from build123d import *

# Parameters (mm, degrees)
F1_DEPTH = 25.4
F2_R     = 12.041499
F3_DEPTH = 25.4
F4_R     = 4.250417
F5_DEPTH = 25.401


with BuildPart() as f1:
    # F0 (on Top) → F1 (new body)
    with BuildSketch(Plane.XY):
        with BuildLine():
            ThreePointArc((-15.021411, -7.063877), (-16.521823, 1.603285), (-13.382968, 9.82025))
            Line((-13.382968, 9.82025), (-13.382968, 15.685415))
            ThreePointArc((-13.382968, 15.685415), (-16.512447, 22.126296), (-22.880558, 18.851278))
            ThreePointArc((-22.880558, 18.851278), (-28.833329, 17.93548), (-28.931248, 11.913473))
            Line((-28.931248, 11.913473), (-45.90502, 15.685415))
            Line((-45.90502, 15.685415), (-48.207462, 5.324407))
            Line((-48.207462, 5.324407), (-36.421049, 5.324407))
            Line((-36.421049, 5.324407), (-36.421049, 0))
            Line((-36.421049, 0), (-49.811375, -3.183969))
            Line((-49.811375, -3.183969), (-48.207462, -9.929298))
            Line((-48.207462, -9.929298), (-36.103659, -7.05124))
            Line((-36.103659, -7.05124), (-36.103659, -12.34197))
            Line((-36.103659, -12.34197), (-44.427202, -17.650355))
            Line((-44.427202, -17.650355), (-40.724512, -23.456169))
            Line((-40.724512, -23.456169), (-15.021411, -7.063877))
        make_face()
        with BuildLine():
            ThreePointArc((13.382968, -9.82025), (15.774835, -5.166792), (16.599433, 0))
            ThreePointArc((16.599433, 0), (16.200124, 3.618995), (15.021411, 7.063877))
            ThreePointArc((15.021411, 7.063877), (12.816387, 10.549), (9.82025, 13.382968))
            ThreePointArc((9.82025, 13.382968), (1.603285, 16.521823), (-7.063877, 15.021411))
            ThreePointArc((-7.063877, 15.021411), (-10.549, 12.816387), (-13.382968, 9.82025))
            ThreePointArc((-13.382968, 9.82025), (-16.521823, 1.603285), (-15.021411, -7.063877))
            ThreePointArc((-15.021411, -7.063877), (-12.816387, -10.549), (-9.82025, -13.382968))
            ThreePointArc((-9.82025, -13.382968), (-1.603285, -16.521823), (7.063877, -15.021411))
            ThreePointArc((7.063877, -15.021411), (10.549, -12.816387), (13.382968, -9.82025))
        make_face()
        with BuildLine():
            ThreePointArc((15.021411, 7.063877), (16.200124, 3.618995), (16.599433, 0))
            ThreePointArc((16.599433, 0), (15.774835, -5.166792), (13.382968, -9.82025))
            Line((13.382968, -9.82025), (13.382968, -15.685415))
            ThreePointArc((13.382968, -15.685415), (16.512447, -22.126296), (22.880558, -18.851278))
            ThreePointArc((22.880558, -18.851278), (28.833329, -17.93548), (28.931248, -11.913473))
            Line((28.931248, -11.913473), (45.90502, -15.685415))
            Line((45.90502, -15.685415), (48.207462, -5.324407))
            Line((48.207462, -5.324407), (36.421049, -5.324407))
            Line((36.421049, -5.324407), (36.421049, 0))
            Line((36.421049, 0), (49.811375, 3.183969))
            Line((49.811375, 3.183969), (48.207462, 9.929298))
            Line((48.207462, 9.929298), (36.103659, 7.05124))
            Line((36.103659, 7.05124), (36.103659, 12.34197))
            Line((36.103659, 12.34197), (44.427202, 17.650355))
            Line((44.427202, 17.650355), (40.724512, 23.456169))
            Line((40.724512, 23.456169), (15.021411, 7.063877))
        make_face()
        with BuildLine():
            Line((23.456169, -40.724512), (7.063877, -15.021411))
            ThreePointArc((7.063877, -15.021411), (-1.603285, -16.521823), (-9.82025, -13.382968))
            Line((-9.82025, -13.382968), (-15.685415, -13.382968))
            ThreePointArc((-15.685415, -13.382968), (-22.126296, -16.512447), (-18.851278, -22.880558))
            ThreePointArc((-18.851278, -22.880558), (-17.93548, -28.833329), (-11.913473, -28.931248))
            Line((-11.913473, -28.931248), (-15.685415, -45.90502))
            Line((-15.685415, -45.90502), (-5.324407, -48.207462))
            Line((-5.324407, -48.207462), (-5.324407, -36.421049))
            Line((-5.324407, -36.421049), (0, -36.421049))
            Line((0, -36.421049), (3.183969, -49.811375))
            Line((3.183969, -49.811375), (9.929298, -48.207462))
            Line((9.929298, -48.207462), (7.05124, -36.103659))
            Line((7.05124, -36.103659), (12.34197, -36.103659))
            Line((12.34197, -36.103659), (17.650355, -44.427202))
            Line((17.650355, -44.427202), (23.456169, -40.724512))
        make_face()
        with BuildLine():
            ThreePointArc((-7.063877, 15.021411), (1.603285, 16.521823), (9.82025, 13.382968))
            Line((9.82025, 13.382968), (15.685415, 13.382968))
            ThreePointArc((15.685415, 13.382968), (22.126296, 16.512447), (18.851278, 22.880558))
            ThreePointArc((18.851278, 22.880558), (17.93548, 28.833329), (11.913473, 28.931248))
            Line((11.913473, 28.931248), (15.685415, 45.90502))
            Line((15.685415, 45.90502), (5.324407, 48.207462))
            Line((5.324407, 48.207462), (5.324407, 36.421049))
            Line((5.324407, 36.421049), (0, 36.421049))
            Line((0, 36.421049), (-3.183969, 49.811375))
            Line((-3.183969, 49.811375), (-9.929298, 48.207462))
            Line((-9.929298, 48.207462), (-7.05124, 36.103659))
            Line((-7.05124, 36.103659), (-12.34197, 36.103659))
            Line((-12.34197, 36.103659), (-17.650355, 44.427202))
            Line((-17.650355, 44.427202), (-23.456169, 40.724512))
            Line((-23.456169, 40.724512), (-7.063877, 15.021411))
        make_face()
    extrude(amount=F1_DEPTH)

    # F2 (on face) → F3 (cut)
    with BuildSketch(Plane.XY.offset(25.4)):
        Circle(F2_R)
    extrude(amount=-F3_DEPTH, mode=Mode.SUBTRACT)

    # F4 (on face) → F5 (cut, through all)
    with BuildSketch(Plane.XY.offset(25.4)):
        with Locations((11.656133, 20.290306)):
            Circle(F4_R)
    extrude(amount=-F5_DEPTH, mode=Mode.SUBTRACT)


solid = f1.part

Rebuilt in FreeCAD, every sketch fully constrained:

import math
import FreeCAD as App
import Part
import Sketcher
Q = App.Units.Quantity

doc = App.newDocument("Part")
body = doc.addObject("PartDesign::Body", "Body")

sketch1 = body.newObject("Sketcher::SketchObject", "Sketch")
sketch1.AttachmentSupport = (doc.getObject("XY_Plane"), [""])
sketch1.MapMode = "FlatFace"
sketch1.addGeometry([
    Part.LineSegment(App.Vector(-13.382968, 9.82025, 0), App.Vector(-13.382968, 15.685415, 0)),
    Part.ArcOfCircle(Part.Circle(App.Vector(-18.095787, 17.376275, 0), App.Vector(0, 0, 1), 5.006962), math.radians(-19.736911), math.radians(162.867017)),
    Part.ArcOfCircle(Part.Circle(App.Vector(-25.314348, 14.866461, 0), App.Vector(0, 0, 1), 4.669272), math.radians(58.584836), math.radians(219.229638)),
    Part.LineSegment(App.Vector(-28.931248, 11.913473, 0), App.Vector(-45.90502, 15.685415, 0)),
    Part.LineSegment(App.Vector(-45.90502, 15.685415, 0), App.Vector(-48.207462, 5.324407, 0)),
    Part.LineSegment(App.Vector(-48.207462, 5.324407, 0), App.Vector(-36.421049, 5.324407, 0)),
    Part.LineSegment(App.Vector(-36.421049, 5.324407, 0), App.Vector(-36.421049, 0, 0)),
    Part.LineSegment(App.Vector(-36.421049, 0, 0), App.Vector(-49.811375, -3.183969, 0)),
    Part.LineSegment(App.Vector(-49.811375, -3.183969, 0), App.Vector(-48.207462, -9.929298, 0)),
    Part.LineSegment(App.Vector(-48.207462, -9.929298, 0), App.Vector(-36.103659, -7.05124, 0)),
    Part.LineSegment(App.Vector(-36.103659, -7.05124, 0), App.Vector(-36.103659, -12.34197, 0)),
    Part.LineSegment(App.Vector(-36.103659, -12.34197, 0), App.Vector(-44.427202, -17.650355, 0)),
    Part.LineSegment(App.Vector(-44.427202, -17.650355, 0), App.Vector(-40.724512, -23.456169, 0)),
    Part.LineSegment(App.Vector(-40.724512, -23.456169, 0), App.Vector(-15.021411, -7.063877, 0)),
    Part.ArcOfCircle(Part.Circle(App.Vector(-0.000024, -0.00002, 0), App.Vector(0, 0, 1), 16.599402), math.radians(-154.814587), math.radians(-126.270715)),
    Part.LineSegment(App.Vector(-9.82025, -13.382968, 0), App.Vector(-15.685415, -13.382968, 0)),
    Part.ArcOfCircle(Part.Circle(App.Vector(-17.376275, -18.095787, 0), App.Vector(0, 0, 1), 5.006962), math.radians(70.263089), math.radians(252.867017)),
    Part.ArcOfCircle(Part.Circle(App.Vector(-14.866461, -25.314348, 0), App.Vector(0, 0, 1), 4.669272), math.radians(148.584836), math.radians(309.229638)),
    Part.LineSegment(App.Vector(-11.913473, -28.931248, 0), App.Vector(-15.685415, -45.90502, 0)),
    Part.LineSegment(App.Vector(-15.685415, -45.90502, 0), App.Vector(-5.324407, -48.207462, 0)),
    Part.LineSegment(App.Vector(-5.324407, -48.207462, 0), App.Vector(-5.324407, -36.421049, 0)),
    Part.LineSegment(App.Vector(-5.324407, -36.421049, 0), App.Vector(0, -36.421049, 0)),
    Part.LineSegment(App.Vector(0, -36.421049, 0), App.Vector(3.183969, -49.811375, 0)),
    Part.LineSegment(App.Vector(3.183969, -49.811375, 0), App.Vector(9.929298, -48.207462, 0)),
    Part.LineSegment(App.Vector(9.929298, -48.207462, 0), App.Vector(7.05124, -36.103659, 0)),
    Part.LineSegment(App.Vector(7.05124, -36.103659, 0), App.Vector(12.34197, -36.103659, 0)),
    Part.LineSegment(App.Vector(12.34197, -36.103659, 0), App.Vector(17.650355, -44.427202, 0)),
    Part.LineSegment(App.Vector(17.650355, -44.427202, 0), App.Vector(23.456169, -40.724512, 0)),
    Part.LineSegment(App.Vector(23.456169, -40.724512, 0), App.Vector(7.063877, -15.021411, 0)),
    Part.ArcOfCircle(Part.Circle(App.Vector(0.00002, -0.000024, 0), App.Vector(0, 0, 1), 16.599402), math.radians(-64.814587), math.radians(-36.270715)),
    Part.LineSegment(App.Vector(13.382968, -9.82025, 0), App.Vector(13.382968, -15.685415, 0)),
    Part.ArcOfCircle(Part.Circle(App.Vector(18.095787, -17.376275, 0), App.Vector(0, 0, 1), 5.006962), math.radians(160.263089), math.radians(342.867017)),
    Part.ArcOfCircle(Part.Circle(App.Vector(25.314348, -14.866461, 0), App.Vector(0, 0, 1), 4.669272), math.radians(-121.415164), math.radians(39.229638)),
    Part.LineSegment(App.Vector(28.931248, -11.913473, 0), App.Vector(45.90502, -15.685415, 0)),
    Part.LineSegment(App.Vector(45.90502, -15.685415, 0), App.Vector(48.207462, -5.324407, 0)),
    Part.LineSegment(App.Vector(48.207462, -5.324407, 0), App.Vector(36.421049, -5.324407, 0)),
    Part.LineSegment(App.Vector(36.421049, -5.324407, 0), App.Vector(36.421049, 0, 0)),
    Part.LineSegment(App.Vector(36.421049, 0, 0), App.Vector(49.811375, 3.183969, 0)),
    Part.LineSegment(App.Vector(49.811375, 3.183969, 0), App.Vector(48.207462, 9.929298, 0)),
    Part.LineSegment(App.Vector(48.207462, 9.929298, 0), App.Vector(36.103659, 7.05124, 0)),
    Part.LineSegment(App.Vector(36.103659, 7.05124, 0), App.Vector(36.103659, 12.34197, 0)),
    Part.LineSegment(App.Vector(36.103659, 12.34197, 0), App.Vector(44.427202, 17.650355, 0)),
    Part.LineSegment(App.Vector(44.427202, 17.650355, 0), App.Vector(40.724512, 23.456169, 0)),
    Part.LineSegment(App.Vector(40.724512, 23.456169, 0), App.Vector(15.021411, 7.063877, 0)),
    Part.ArcOfCircle(Part.Circle(App.Vector(0.000024, 0.00002, 0), App.Vector(0, 0, 1), 16.599402), math.radians(25.185413), math.radians(53.729285)),
    Part.LineSegment(App.Vector(9.82025, 13.382968, 0), App.Vector(15.685415, 13.382968, 0)),
    Part.ArcOfCircle(Part.Circle(App.Vector(17.376275, 18.095787, 0), App.Vector(0, 0, 1), 5.006962), math.radians(-109.736911), math.radians(72.867017)),
    Part.ArcOfCircle(Part.Circle(App.Vector(14.866461, 25.314348, 0), App.Vector(0, 0, 1), 4.669272), math.radians(-31.415164), math.radians(129.229638)),
    Part.LineSegment(App.Vector(11.913473, 28.931248, 0), App.Vector(15.685415, 45.90502, 0)),
    Part.LineSegment(App.Vector(15.685415, 45.90502, 0), App.Vector(5.324407, 48.207462, 0)),
    Part.LineSegment(App.Vector(5.324407, 48.207462, 0), App.Vector(5.324407, 36.421049, 0)),
    Part.LineSegment(App.Vector(5.324407, 36.421049, 0), App.Vector(0, 36.421049, 0)),
    Part.LineSegment(App.Vector(0, 36.421049, 0), App.Vector(-3.183969, 49.811375, 0)),
    Part.LineSegment(App.Vector(-3.183969, 49.811375, 0), App.Vector(-9.929298, 48.207462, 0)),
    Part.LineSegment(App.Vector(-9.929298, 48.207462, 0), App.Vector(-7.05124, 36.103659, 0)),
    Part.LineSegment(App.Vector(-7.05124, 36.103659, 0), App.Vector(-12.34197, 36.103659, 0)),
    Part.LineSegment(App.Vector(-12.34197, 36.103659, 0), App.Vector(-17.650355, 44.427202, 0)),
    Part.LineSegment(App.Vector(-17.650355, 44.427202, 0), App.Vector(-23.456169, 40.724512, 0)),
    Part.LineSegment(App.Vector(-23.456169, 40.724512, 0), App.Vector(-7.063877, 15.021411, 0)),
    Part.ArcOfCircle(Part.Circle(App.Vector(-0.00002, 0.000024, 0), App.Vector(0, 0, 1), 16.599402), math.radians(115.185413), math.radians(143.729285)),
], False)
sketch1.addConstraint([
    Sketcher.Constraint("Coincident", 0, 2, 1, 1),
    Sketcher.Constraint("Coincident", 1, 2, 2, 1),
    Sketcher.Constraint("Coincident", 2, 2, 3, 1),
    Sketcher.Constraint("Coincident", 3, 2, 4, 1),
    Sketcher.Constraint("Coincident", 4, 2, 5, 1),
    Sketcher.Constraint("Coincident", 5, 2, 6, 1),
    Sketcher.Constraint("Coincident", 6, 2, 7, 1),
    Sketcher.Constraint("Coincident", 7, 2, 8, 1),
    Sketcher.Constraint("Coincident", 8, 2, 9, 1),
    Sketcher.Constraint("Coincident", 9, 2, 10, 1),
    Sketcher.Constraint("Coincident", 10, 2, 11, 1),
    Sketcher.Constraint("Coincident", 11, 2, 12, 1),
    Sketcher.Constraint("Coincident", 12, 2, 13, 1),
    Sketcher.Constraint("Coincident", 13, 2, 14, 1),
    Sketcher.Constraint("Coincident", 14, 2, 15, 1),
    Sketcher.Constraint("Coincident", 15, 2, 16, 1),
    Sketcher.Constraint("Coincident", 16, 2, 17, 1),
    Sketcher.Constraint("Coincident", 17, 2, 18, 1),
    Sketcher.Constraint("Coincident", 18, 2, 19, 1),
    Sketcher.Constraint("Coincident", 19, 2, 20, 1),
    Sketcher.Constraint("Coincident", 20, 2, 21, 1),
    Sketcher.Constraint("Coincident", 21, 2, 22, 1),
    Sketcher.Constraint("Coincident", 22, 2, 23, 1),
    Sketcher.Constraint("Coincident", 23, 2, 24, 1),
    Sketcher.Constraint("Coincident", 24, 2, 25, 1),
    Sketcher.Constraint("Coincident", 25, 2, 26, 1),
    Sketcher.Constraint("Coincident", 26, 2, 27, 1),
    Sketcher.Constraint("Coincident", 27, 2, 28, 1),
    Sketcher.Constraint("Coincident", 28, 2, 29, 1),
    Sketcher.Constraint("Coincident", 29, 2, 30, 1),
    Sketcher.Constraint("Coincident", 30, 2, 31, 1),
    Sketcher.Constraint("Coincident", 31, 2, 32, 1),
    Sketcher.Constraint("Coincident", 32, 2, 33, 1),
    Sketcher.Constraint("Coincident", 33, 2, 34, 1),
    Sketcher.Constraint("Coincident", 34, 2, 35, 1),
    Sketcher.Constraint("Coincident", 35, 2, 36, 1),
    Sketcher.Constraint("Coincident", 36, 2, 37, 1),
    Sketcher.Constraint("Coincident", 37, 2, 38, 1),
    Sketcher.Constraint("Coincident", 38, 2, 39, 1),
    Sketcher.Constraint("Coincident", 39, 2, 40, 1),
    Sketcher.Constraint("Coincident", 40, 2, 41, 1),
    Sketcher.Constraint("Coincident", 41, 2, 42, 1),
    Sketcher.Constraint("Coincident", 42, 2, 43, 1),
    Sketcher.Constraint("Coincident", 43, 2, 44, 1),
    Sketcher.Constraint("Coincident", 44, 2, 45, 1),
    Sketcher.Constraint("Coincident", 45, 2, 46, 1),
    Sketcher.Constraint("Coincident", 46, 2, 47, 1),
    Sketcher.Constraint("Coincident", 47, 2, 48, 1),
    Sketcher.Constraint("Coincident", 48, 2, 49, 1),
    Sketcher.Constraint("Coincident", 49, 2, 50, 1),
    Sketcher.Constraint("Coincident", 50, 2, 51, 1),
    Sketcher.Constraint("Coincident", 51, 2, 52, 1),
    Sketcher.Constraint("Coincident", 52, 2, 53, 1),
    Sketcher.Constraint("Coincident", 53, 2, 54, 1),
    Sketcher.Constraint("Coincident", 54, 2, 55, 1),
    Sketcher.Constraint("Coincident", 55, 2, 56, 1),
    Sketcher.Constraint("Coincident", 56, 2, 57, 1),
    Sketcher.Constraint("Coincident", 57, 2, 58, 1),
    Sketcher.Constraint("Coincident", 58, 2, 59, 1),
    Sketcher.Constraint("Coincident", 59, 2, 0, 1),
    Sketcher.Constraint("Vertical", 0),
    Sketcher.Constraint("Horizontal", 5),
    Sketcher.Constraint("Vertical", 6),
    Sketcher.Constraint("Vertical", 10),
    Sketcher.Constraint("Horizontal", 15),
    Sketcher.Constraint("Vertical", 20),
    Sketcher.Constraint("Horizontal", 21),
    Sketcher.Constraint("Horizontal", 25),
    Sketcher.Constraint("Vertical", 30),
    Sketcher.Constraint("Horizontal", 35),
    Sketcher.Constraint("Vertical", 36),
    Sketcher.Constraint("Vertical", 40),
    Sketcher.Constraint("Horizontal", 45),
    Sketcher.Constraint("Vertical", 50),
    Sketcher.Constraint("Horizontal", 51),
    Sketcher.Constraint("Horizontal", 55),
    Sketcher.Constraint("Equal", 1, 16),
    Sketcher.Constraint("Equal", 2, 17),
    Sketcher.Constraint("Equal", 14, 29),
    Sketcher.Constraint("Equal", 16, 31),
    Sketcher.Constraint("Equal", 17, 32),
    Sketcher.Constraint("Equal", 29, 44),
    Sketcher.Constraint("Equal", 31, 46),
    Sketcher.Constraint("Equal", 32, 47),
    Sketcher.Constraint("Equal", 44, 59),
    Sketcher.Constraint("Symmetric", 1, 3, 31, 3, -1, 1),
    Sketcher.Constraint("Symmetric", 2, 3, 32, 3, -1, 1),
    Sketcher.Constraint("Symmetric", 14, 3, 44, 3, -1, 1),
    Sketcher.Constraint("Symmetric", 16, 3, 46, 3, -1, 1),
    Sketcher.Constraint("Symmetric", 17, 3, 47, 3, -1, 1),
    Sketcher.Constraint("Symmetric", 29, 3, 59, 3, -1, 1),
    Sketcher.Constraint("Symmetric", 3, 2, 33, 2, -1, 1),
    Sketcher.Constraint("Symmetric", 4, 2, 34, 2, -1, 1),
    Sketcher.Constraint("Symmetric", 6, 2, 36, 2, -1, 1),
    Sketcher.Constraint("Symmetric", 7, 2, 37, 2, -1, 1),
    Sketcher.Constraint("Symmetric", 8, 2, 38, 2, -1, 1),
    Sketcher.Constraint("Symmetric", 9, 2, 39, 2, -1, 1),
    Sketcher.Constraint("Symmetric", 11, 2, 41, 2, -1, 1),
    Sketcher.Constraint("Symmetric", 12, 2, 42, 2, -1, 1),
    Sketcher.Constraint("Symmetric", 18, 2, 48, 2, -1, 1),
    Sketcher.Constraint("Symmetric", 19, 2, 49, 2, -1, 1),
    Sketcher.Constraint("Symmetric", 21, 2, 51, 2, -1, 1),
    Sketcher.Constraint("Symmetric", 22, 2, 52, 2, -1, 1),
    Sketcher.Constraint("Symmetric", 23, 2, 53, 2, -1, 1),
    Sketcher.Constraint("Symmetric", 24, 2, 54, 2, -1, 1),
    Sketcher.Constraint("Symmetric", 26, 2, 56, 2, -1, 1),
    Sketcher.Constraint("Symmetric", 27, 2, 57, 2, -1, 1),
    Sketcher.Constraint("Symmetric", 14, 3, 29, 3, -2),
    Sketcher.Constraint("PointOnObject", 6, 2, -1),
    Sketcher.Constraint("PointOnObject", 21, 2, -2),
    Sketcher.Constraint("Perpendicular", 3, 4),
    Sketcher.Constraint("Perpendicular", 7, 8),
    Sketcher.Constraint("Perpendicular", 8, 9),
    Sketcher.Constraint("Perpendicular", 11, 12),
    Sketcher.Constraint("Perpendicular", 12, 13),
    Sketcher.Constraint("Parallel", 4, 18),
    Sketcher.Constraint("Perpendicular", 18, 19),
    Sketcher.Constraint("Perpendicular", 9, 22),
    Sketcher.Constraint("Perpendicular", 22, 23),
    Sketcher.Constraint("Perpendicular", 23, 24),
    Sketcher.Constraint("Perpendicular", 13, 26),
    Sketcher.Constraint("Perpendicular", 26, 27),
    Sketcher.Constraint("Perpendicular", 27, 28),
    Sketcher.Constraint("Parallel", 19, 33),
    Sketcher.Constraint("Perpendicular", 28, 41),
    Sketcher.Constraint("Perpendicular", 42, 43),
    Sketcher.Constraint("Parallel", 34, 48),
    Sketcher.Constraint("Perpendicular", 43, 56),
    Sketcher.Constraint("Perpendicular", 57, 58),
    Sketcher.Constraint("Horizontal", 0, 2, 3, 2),
    Sketcher.Constraint("Horizontal", 19, 2, 23, 2),
    Sketcher.Constraint("Horizontal", 30, 2, 33, 2),
    Sketcher.Constraint("Vertical", 4, 2, 8, 2),
    Sketcher.Constraint("Vertical", 15, 2, 18, 2),
    Sketcher.Constraint("Vertical", 45, 2, 48, 2),
    Sketcher.Constraint("Equal", 45, 0),
    Sketcher.Constraint("Equal", 51, 6),
    Sketcher.Constraint("Equal", 55, 10),
    Sketcher.Constraint("Equal", 35, 20),
    Sketcher.Constraint("Equal", 3, 18),
    Sketcher.Constraint("Equal", 4, 19),
    Sketcher.Constraint("Equal", 7, 22),
    Sketcher.Constraint("Equal", 9, 24),
    Sketcher.Constraint("Equal", 11, 26),
    Sketcher.Constraint("Equal", 12, 27),
    Sketcher.Constraint("Equal", 13, 28),
    Sketcher.Constraint("Radius", 14, 16.599402),
    Sketcher.Constraint("Radius", 1, 5.006962),
    Sketcher.Constraint("Radius", 2, 4.669272),
    Sketcher.Constraint("Distance", 11, 9.872199),
    Sketcher.Constraint("DistanceX", 25, 1, 25, 2, 5.29073),
    Sketcher.Constraint("Distance", 4, 10.613752),
    Sketcher.Constraint("Distance", 12, 6.886029),
    Sketcher.Constraint("Distance", 13, 30.485351),
    Sketcher.Constraint("DistanceX", 5, 1, 5, 2, 11.786413),
    Sketcher.Constraint("DistanceX", 15, 2, 15, 1, 5.865165),
    Sketcher.Constraint("DistanceX", 21, 1, 21, 2, 5.324407),
    Sketcher.Constraint("DistanceX", 2, 3, -1, 1, 25.314348),
    Sketcher.Constraint("DistanceY", -1, 1, 2, 3, 14.866461),
    Sketcher.Constraint("DistanceX", 17, 3, -1, 1, 14.866461),
    Sketcher.Constraint("DistanceY", 17, 3, -1, 1, 25.314348),
    Sketcher.Constraint("DistanceX", 3, 2, -1, 1, 45.90502),
    Sketcher.Constraint("DistanceX", 5, 2, -1, 1, 36.421049),
    Sketcher.Constraint("DistanceY", 7, 2, -1, 1, 3.183969),
    Sketcher.Constraint("DistanceX", 9, 2, -1, 1, 36.103659),
    Sketcher.Constraint("DistanceY", 9, 2, -1, 1, 7.05124),
    Sketcher.Constraint("DistanceX", 12, 2, -1, 1, 40.724512),
    Sketcher.Constraint("DistanceX", 1, 3, -1, 1, 18.095787),
    Sketcher.Constraint("DistanceX", 16, 3, -1, 1, 17.376275),
])
pad1 = body.newObject("PartDesign::Pad", "Pad")
pad1.Profile = sketch1
pad1.Length = Q("1 in")

sketch2 = body.newObject("Sketcher::SketchObject", "Sketch001")
sketch2.AttachmentSupport = (doc.getObject("XY_Plane"), [""])
sketch2.MapMode = "FlatFace"
sketch2.AttachmentOffset = App.Placement(App.Vector(0, 0, 1 * 25.4), App.Rotation())
sketch2.addGeometry(Part.Circle(App.Vector(0, 0, 0), App.Vector(0, 0, 1), 12), False)
sketch2.addConstraint([
    Sketcher.Constraint("Coincident", 0, 3, -1, 1),
    Sketcher.Constraint("Diameter", 0, 24.082998),
])
pocket1 = body.newObject("PartDesign::Pocket", "Pocket")
pocket1.Profile = sketch2
pocket1.Length = Q("1 in")

sketch3 = body.newObject("Sketcher::SketchObject", "Sketch002")
sketch3.AttachmentSupport = (doc.getObject("XY_Plane"), [""])
sketch3.MapMode = "FlatFace"
sketch3.AttachmentOffset = App.Placement(App.Vector(0, 0, 1 * 25.4), App.Rotation())
sketch3.addGeometry(Part.Circle(App.Vector(11.7, 20.3, 0), App.Vector(0, 0, 1), 4.3), False)
sketch3.addConstraint([
    Sketcher.Constraint("Diameter", 0, 8.500834),
    Sketcher.Constraint("DistanceX", -1, 1, 0, 3, 11.656133),
    Sketcher.Constraint("DistanceY", -1, 1, 0, 3, 20.290306),
])
pocket2 = body.newObject("PartDesign::Pocket", "Pocket001")
pocket2.Profile = sketch3
pocket2.Type = "ThroughAll"

doc.recompute()
